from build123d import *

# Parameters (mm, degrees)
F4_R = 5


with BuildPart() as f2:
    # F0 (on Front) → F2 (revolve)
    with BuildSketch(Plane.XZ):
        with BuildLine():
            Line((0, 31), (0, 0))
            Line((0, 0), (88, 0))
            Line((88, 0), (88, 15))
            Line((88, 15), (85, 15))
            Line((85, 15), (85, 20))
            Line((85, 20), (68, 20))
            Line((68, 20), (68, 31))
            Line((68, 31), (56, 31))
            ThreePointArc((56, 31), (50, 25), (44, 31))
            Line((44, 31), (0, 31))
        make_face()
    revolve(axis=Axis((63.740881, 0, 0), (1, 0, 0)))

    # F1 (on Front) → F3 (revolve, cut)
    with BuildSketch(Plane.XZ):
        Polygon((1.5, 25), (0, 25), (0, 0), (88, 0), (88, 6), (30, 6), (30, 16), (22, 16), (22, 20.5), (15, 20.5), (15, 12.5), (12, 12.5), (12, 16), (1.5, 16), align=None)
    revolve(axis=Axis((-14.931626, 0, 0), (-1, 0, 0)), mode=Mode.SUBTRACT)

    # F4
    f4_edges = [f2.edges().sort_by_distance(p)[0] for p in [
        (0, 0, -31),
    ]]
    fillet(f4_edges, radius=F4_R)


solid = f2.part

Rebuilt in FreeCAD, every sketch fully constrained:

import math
import FreeCAD as App
import Part
import Sketcher
Q = App.Units.Quantity


def edges_at(feature, points):
    """Names of the edges that pass closest to the given points."""
    edges = feature.Shape.Edges
    near = lambda p: min(range(len(edges)), key=lambda i: edges[i].distToShape(Part.Vertex(*p))[0])
    return sorted({f"Edge{near(p) + 1}" for p in points})

doc = App.newDocument("Part")
body = doc.addObject("PartDesign::Body", "Body")

# Sketch on XZ plane
sketch1 = doc.addObject("Sketcher::SketchObject", "Sketch")
body.addObject(sketch1)
sketch1.AttachmentSupport = (doc.XZ_Plane, [""])
sketch1.MapMode = "FlatFace"
sketch1.addGeometry([
    Part.LineSegment(App.Vector(0, 31, 0), App.Vector(0, 0, 0)),  # 0
    Part.LineSegment(App.Vector(0, 0, 0), App.Vector(88, 0, 0)),  # 1
    Part.LineSegment(App.Vector(88, 0, 0), App.Vector(88, 15, 0)),  # 2
    Part.LineSegment(App.Vector(88, 15, 0), App.Vector(85, 15, 0)),  # 3
    Part.LineSegment(App.Vector(85, 15, 0), App.Vector(85, 20, 0)),  # 4
    Part.LineSegment(App.Vector(85, 20, 0), App.Vector(68, 20, 0)),  # 5
    Part.LineSegment(App.Vector(68, 20, 0), App.Vector(68, 31, 0)),  # 6
    Part.LineSegment(App.Vector(68, 31, 0), App.Vector(56, 31, 0)),  # 7
    Part.ArcOfCircle(Part.Circle(App.Vector(50, 31, 0), App.Vector(0, 0, 1), 6), math.radians(180), math.radians(360)),  # 8
    Part.LineSegment(App.Vector(44, 31, 0), App.Vector(0, 31, 0)),  # 9
], False)
sketch1.addConstraint([
    Sketcher.Constraint("Coincident", 0, 2, 1, 1),
    Sketcher.Constraint("Coincident", 1, 2, 2, 1),
    Sketcher.Constraint("Coincident", 2, 2, 3, 1),
    Sketcher.Constraint("Coincident", 3, 2, 4, 1),
    Sketcher.Constraint("Coincident", 4, 2, 5, 1),
    Sketcher.Constraint("Coincident", 5, 2, 6, 1),
    Sketcher.Constraint("Coincident", 6, 2, 7, 1),
    Sketcher.Constraint("Coincident", 7, 2, 8, 2),
    Sketcher.Constraint("Coincident", 8, 1, 9, 1),
    Sketcher.Constraint("Coincident", 9, 2, 0, 1),
    Sketcher.Constraint("Vertical", 0),
    Sketcher.Constraint("Horizontal", 1),
    Sketcher.Constraint("Vertical", 2),
    Sketcher.Constraint("Horizontal", 3),
    Sketcher.Constraint("Vertical", 4),
    Sketcher.Constraint("Horizontal", 5),
    Sketcher.Constraint("Vertical", 6),
    Sketcher.Constraint("Horizontal", 7),
    Sketcher.Constraint("Horizontal", 9),
    Sketcher.Constraint("Coincident", 0, 2, -1, 1),
    Sketcher.Constraint("Horizontal", 8, 3, 6, 2),
    Sketcher.Constraint("Horizontal", 7, 2, 8, 1),
    Sketcher.Constraint("Radius", 8, Q("6 mm")),
    Sketcher.Constraint("DistanceX", 1, 1, 1, 2, Q("88 mm")),
    Sketcher.Constraint("DistanceX", 3, 2, 3, 1, Q("3 mm")),
    Sketcher.Constraint("DistanceX", 5, 2, 5, 1, Q("17 mm")),
    Sketcher.Constraint("DistanceX", 7, 2, 7, 1, Q("12 mm")),
    Sketcher.Constraint("DistanceY", 0, 2, 0, 1, Q("31 mm")),
    Sketcher.Constraint("DistanceY", 2, 1, 2, 2, Q("15 mm")),
    Sketcher.Constraint("DistanceY", 4, 1, 4, 2, Q("5 mm")),
])
revolution = doc.addObject("PartDesign::Revolution", "Revolution")
body.addObject(revolution)
revolution.Profile = sketch1
revolution.ReferenceAxis = (sketch1, ["H_Axis"])
revolution.Angle = 360

# Sketch on XZ plane
sketch2 = doc.addObject("Sketcher::SketchObject", "Sketch001")
body.addObject(sketch2)
sketch2.AttachmentSupport = (doc.XZ_Plane, [""])
sketch2.MapMode = "FlatFace"
sketch2.addGeometry([
    Part.LineSegment(App.Vector(1.5, 25, 0), App.Vector(0, 25, 0)),  # 0
    Part.LineSegment(App.Vector(0, 25, 0), App.Vector(0, 0, 0)),  # 1
    Part.LineSegment(App.Vector(0, 0, 0), App.Vector(88, 0, 0)),  # 2
    Part.LineSegment(App.Vector(88, 0, 0), App.Vector(88, 6, 0)),  # 3
    Part.LineSegment(App.Vector(88, 6, 0), App.Vector(30, 6, 0)),  # 4
    Part.LineSegment(App.Vector(30, 6, 0), App.Vector(30, 16, 0)),  # 5
    Part.LineSegment(App.Vector(30, 16, 0), App.Vector(22, 16, 0)),  # 6
    Part.LineSegment(App.Vector(22, 16, 0), App.Vector(22, 20.5, 0)),  # 7
    Part.LineSegment(App.Vector(22, 20.5, 0), App.Vector(15, 20.5, 0)),  # 8
    Part.LineSegment(App.Vector(15, 20.5, 0), App.Vector(15, 12.5, 0)),  # 9
    Part.LineSegment(App.Vector(15, 12.5, 0), App.Vector(12, 12.5, 0)),  # 10
    Part.LineSegment(App.Vector(12, 12.5, 0), App.Vector(12, 16, 0)),  # 11
    Part.LineSegment(App.Vector(12, 16, 0), App.Vector(1.5, 16, 0)),  # 12
    Part.LineSegment(App.Vector(1.5, 16, 0), App.Vector(1.5, 25, 0)),  # 13
], False)
sketch2.addConstraint([
    Sketcher.Constraint("Coincident", 0, 2, 1, 1),
    Sketcher.Constraint("Coincident", 1, 2, 2, 1),
    Sketcher.Constraint("Coincident", 2, 2, 3, 1),
    Sketcher.Constraint("Coincident", 3, 2, 4, 1),
    Sketcher.Constraint("Coincident", 4, 2, 5, 1),
    Sketcher.Constraint("Coincident", 5, 2, 6, 1),
    Sketcher.Constraint("Coincident", 6, 2, 7, 1),
    Sketcher.Constraint("Coincident", 7, 2, 8, 1),
    Sketcher.Constraint("Coincident", 8, 2, 9, 1),
    Sketcher.Constraint("Coincident", 9, 2, 10, 1),
    Sketcher.Constraint("Coincident", 10, 2, 11, 1),
    Sketcher.Constraint("Coincident", 11, 2, 12, 1),
    Sketcher.Constraint("Coincident", 12, 2, 13, 1),
    Sketcher.Constraint("Coincident", 13, 2, 0, 1),
    Sketcher.Constraint("Horizontal", 0),
    Sketcher.Constraint("Vertical", 1),
    Sketcher.Constraint("Horizontal", 2),
    Sketcher.Constraint("Vertical", 3),
    Sketcher.Constraint("Horizontal", 4),
    Sketcher.Constraint("Vertical", 5),
    Sketcher.Constraint("Horizontal", 6),
    Sketcher.Constraint("Vertical", 7),
    Sketcher.Constraint("Horizontal", 8),
    Sketcher.Constraint("Vertical", 9),
    Sketcher.Constraint("Horizontal", 10),
    Sketcher.Constraint("Vertical", 11),
    Sketcher.Constraint("Horizontal", 12),
    Sketcher.Constraint("Vertical", 13),
    Sketcher.Constraint("Coincident", 1, 2, -1, 1),
    Sketcher.Constraint("Horizontal", 6, 2, 11, 2),
    Sketcher.Constraint("Equal", 6, 9),
    Sketcher.Constraint("DistanceX", 2, 1, 2, 2, Q("88 mm")),
    Sketcher.Constraint("DistanceX", 4, 2, 4, 1, Q("58 mm")),
    Sketcher.Constraint("DistanceX", 6, 2, 6, 1, Q("8 mm")),
    Sketcher.Constraint("DistanceX", 8, 2, 8, 1, Q("7 mm")),
    Sketcher.Constraint("DistanceX", 10, 2, 10, 1, Q("3 mm")),
    Sketcher.Constraint("DistanceY", 1, 2, 1, 1, Q("25 mm")),
    Sketcher.Constraint("DistanceY", 3, 1, 3, 2, Q("6 mm")),
    Sketcher.Constraint("DistanceY", 5, 1, 5, 2, Q("10 mm")),
    Sketcher.Constraint("DistanceX", 0, 2, 0, 1, Q("1.5 mm")),
    Sketcher.Constraint("DistanceY", 7, 1, 7, 2, Q("4.5 mm")),
])
groove = doc.addObject("PartDesign::Groove", "Groove")
body.addObject(groove)
groove.Profile = sketch2
groove.ReferenceAxis = (sketch2, ["H_Axis"])
groove.Angle = 360
doc.recompute()

fillet = doc.addObject("PartDesign::Fillet", "Fillet")
body.addObject(fillet)
fillet.Base = (groove, edges_at(groove, [(0, 0, -31)]))
fillet.Radius = 5

doc.recompute()
